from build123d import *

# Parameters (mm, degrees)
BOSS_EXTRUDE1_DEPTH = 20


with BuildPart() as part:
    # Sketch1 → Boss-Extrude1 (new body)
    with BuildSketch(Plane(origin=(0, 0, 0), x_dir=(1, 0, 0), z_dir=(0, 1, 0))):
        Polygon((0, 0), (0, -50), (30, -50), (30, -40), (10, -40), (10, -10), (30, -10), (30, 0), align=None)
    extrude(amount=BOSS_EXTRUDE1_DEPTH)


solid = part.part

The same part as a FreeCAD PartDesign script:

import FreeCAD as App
import Part
import Sketcher
from FreeCAD import Vector
Q = App.Units.Quantity

doc = App.newDocument("Part")
body = doc.addObject("PartDesign::Body", "Body")

# Sketch on XZ plane
sketch1 = doc.addObject("Sketcher::SketchObject", "Sketch")
body.addObject(sketch1)
sketch1.AttachmentSupport = (doc.XZ_Plane, [""])
sketch1.MapMode = "FlatFace"
sketch1.addGeometry([
    Part.LineSegment(Vector(0, 0, 0), Vector(0, 50, 0)),  # 0
    Part.LineSegment(Vector(0, 50, 0), Vector(30, 50, 0)),  # 1
    Part.LineSegment(Vector(30, 50, 0), Vector(30, 40, 0)),  # 2
    Part.LineSegment(Vector(30, 40, 0), Vector(10, 40, 0)),  # 3
    Part.LineSegment(Vector(10, 40, 0), Vector(10, 10, 0)),  # 4
    Part.LineSegment(Vector(10, 10, 0), Vector(30, 10, 0)),  # 5
    Part.LineSegment(Vector(30, 10, 0), Vector(30, 0, 0)),  # 6
    Part.LineSegment(Vector(30, 0, 0), Vector(0, 0, 0)),  # 7
], False)
sketch1.addConstraint([
    Sketcher.Constraint("Coincident", 0, 2, 1, 1),
    Sketcher.Constraint("Coincident", 1, 2, 2, 1),
    Sketcher.Constraint("Coincident", 2, 2, 3, 1),
    Sketcher.Constraint("Coincident", 3, 2, 4, 1),
    Sketcher.Constraint("Coincident", 4, 2, 5, 1),
    Sketcher.Constraint("Coincident", 5, 2, 6, 1),
    Sketcher.Constraint("Coincident", 6, 2, 7, 1),
    Sketcher.Constraint("Coincident", 7, 2, 0, 1),
    Sketcher.Constraint("Vertical", 0),
    Sketcher.Constraint("Horizontal", 1),
    Sketcher.Constraint("Vertical", 2),
    Sketcher.Constraint("Horizontal", 3),
    Sketcher.Constraint("Vertical", 4),
    Sketcher.Constraint("Horizontal", 5),
    Sketcher.Constraint("Vertical", 6),
    Sketcher.Constraint("Horizontal", 7),
    Sketcher.Constraint("Coincident", 7, 2, -1, 1),
    Sketcher.Constraint("Vertical", 2, 2, 5, 2),
    Sketcher.Constraint("Equal", 7, 4),
    Sketcher.Constraint("Equal", 2, 6),
    Sketcher.Constraint("DistanceX", 1, 1, 1, 2, Q("30 mm")),
    Sketcher.Constraint("DistanceX", 3, 2, 3, 1, Q("20 mm")),
    Sketcher.Constraint("DistanceY", 0, 1, 0, 2, Q("50 mm")),
])
pad1 = doc.addObject("PartDesign::Pad", "Pad")
body.addObject(pad1)
pad1.Profile = sketch1
pad1.Length = 20
pad1.Reversed = True

doc.recompute()
